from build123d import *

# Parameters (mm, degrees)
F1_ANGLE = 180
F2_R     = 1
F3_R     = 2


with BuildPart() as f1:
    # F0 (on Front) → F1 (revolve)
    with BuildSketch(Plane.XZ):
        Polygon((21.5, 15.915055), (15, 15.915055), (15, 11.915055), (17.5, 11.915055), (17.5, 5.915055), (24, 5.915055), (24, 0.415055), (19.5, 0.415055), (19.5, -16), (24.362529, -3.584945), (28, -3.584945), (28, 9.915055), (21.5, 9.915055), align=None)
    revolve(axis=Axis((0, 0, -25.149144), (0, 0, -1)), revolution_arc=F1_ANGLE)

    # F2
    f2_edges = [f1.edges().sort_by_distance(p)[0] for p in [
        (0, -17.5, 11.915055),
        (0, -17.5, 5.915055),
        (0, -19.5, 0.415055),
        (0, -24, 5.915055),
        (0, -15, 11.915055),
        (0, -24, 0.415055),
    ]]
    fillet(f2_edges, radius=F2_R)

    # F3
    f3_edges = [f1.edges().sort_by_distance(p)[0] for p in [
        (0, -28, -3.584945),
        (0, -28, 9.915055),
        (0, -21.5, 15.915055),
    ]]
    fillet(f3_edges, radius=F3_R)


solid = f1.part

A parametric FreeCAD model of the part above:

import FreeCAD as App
import Part
import Sketcher


def edges_at(feature, points):
    """Names of the edges that pass closest to the given points."""
    edges = feature.Shape.Edges
    near = lambda p: min(range(len(edges)), key=lambda i: edges[i].distToShape(Part.Vertex(*p))[0])
    return sorted({f"Edge{near(p) + 1}" for p in points})

doc = App.newDocument("Part")
body = doc.addObject("PartDesign::Body", "Body")

sketch1 = body.newObject("Sketcher::SketchObject", "Sketch")
sketch1.AttachmentSupport = (doc.getObject("XZ_Plane"), [""])
sketch1.MapMode = "FlatFace"
sketch1.addGeometry([
    Part.LineSegment(App.Vector(21.5, 15.915055, 0), App.Vector(15, 15.915055, 0)),
    Part.LineSegment(App.Vector(15, 15.915055, 0), App.Vector(15, 11.915055, 0)),
    Part.LineSegment(App.Vector(15, 11.915055, 0), App.Vector(17.5, 11.915055, 0)),
    Part.LineSegment(App.Vector(17.5, 11.915055, 0), App.Vector(17.5, 5.915055, 0)),
    Part.LineSegment(App.Vector(17.5, 5.915055, 0), App.Vector(24, 5.915055, 0)),
    Part.LineSegment(App.Vector(24, 5.915055, 0), App.Vector(24, 0.415055, 0)),
    Part.LineSegment(App.Vector(24, 0.415055, 0), App.Vector(19.5, 0.415055, 0)),
    Part.LineSegment(App.Vector(19.5, 0.415055, 0), App.Vector(19.5, -16, 0)),
    Part.LineSegment(App.Vector(19.5, -16, 0), App.Vector(24.362529, -3.584945, 0)),
    Part.LineSegment(App.Vector(24.362529, -3.584945, 0), App.Vector(28, -3.584945, 0)),
    Part.LineSegment(App.Vector(28, -3.584945, 0), App.Vector(28, 9.915055, 0)),
    Part.LineSegment(App.Vector(28, 9.915055, 0), App.Vector(21.5, 9.915055, 0)),
    Part.LineSegment(App.Vector(21.5, 9.915055, 0), App.Vector(21.5, 15.915055, 0)),
], False)
sketch1.addConstraint([
    Sketcher.Constraint("Coincident", 0, 2, 1, 1),
    Sketcher.Constraint("Coincident", 1, 2, 2, 1),
    Sketcher.Constraint("Coincident", 2, 2, 3, 1),
    Sketcher.Constraint("Coincident", 3, 2, 4, 1),
    Sketcher.Constraint("Coincident", 4, 2, 5, 1),
    Sketcher.Constraint("Coincident", 5, 2, 6, 1),
    Sketcher.Constraint("Coincident", 6, 2, 7, 1),
    Sketcher.Constraint("Coincident", 7, 2, 8, 1),
    Sketcher.Constraint("Coincident", 8, 2, 9, 1),
    Sketcher.Constraint("Coincident", 9, 2, 10, 1),
    Sketcher.Constraint("Coincident", 10, 2, 11, 1),
    Sketcher.Constraint("Coincident", 11, 2, 12, 1),
    Sketcher.Constraint("Coincident", 12, 2, 0, 1),
    Sketcher.Constraint("Horizontal", 0),
    Sketcher.Constraint("Vertical", 1),
    Sketcher.Constraint("Horizontal", 2),
    Sketcher.Constraint("Vertical", 3),
    Sketcher.Constraint("Horizontal", 4),
    Sketcher.Constraint("Vertical", 5),
    Sketcher.Constraint("Horizontal", 6),
    Sketcher.Constraint("Vertical", 7),
    Sketcher.Constraint("Horizontal", 9),
    Sketcher.Constraint("Vertical", 10),
    Sketcher.Constraint("Horizontal", 11),
    Sketcher.Constraint("Vertical", 12),
    Sketcher.Constraint("Equal", 0, 4),
    Sketcher.Constraint("Equal", 4, 11),
    Sketcher.Constraint("Equal", 3, 12),
    Sketcher.Constraint("DistanceY", 1, 2, 1, 1, 4.0),
    Sketcher.Constraint("DistanceY", 3, 2, 3, 1, 6.0),
    Sketcher.Constraint("DistanceX", 0, 2, 0, 1, 6.5),
    Sketcher.Constraint("DistanceX", 2, 1, 2, 2, 2.5),
    Sketcher.Constraint("DistanceX", 6, 2, 6, 1, 4.5),
    Sketcher.Constraint("DistanceY", 5, 2, 5, 1, 5.5),
    Sketcher.Constraint("DistanceY", 10, 1, 10, 2, 13.5),
    Sketcher.Constraint("DistanceX", -1, 1, 0, 2, 15.0),
    Sketcher.Constraint("DistanceY", 7, 2, -1, 1, 16.0),
    Sketcher.Constraint("DistanceX", 9, 1, 9, 2, 3.637471),
    Sketcher.Constraint("DistanceY", 7, 2, 7, 1, 16.415055),
])
revolution = body.newObject("PartDesign::Revolution", "Revolution")
revolution.Profile = sketch1
revolution.ReferenceAxis = (sketch1, ["V_Axis"])
revolution.Angle = 180
revolution.Reversed = True
doc.recompute()

fillet = body.newObject("PartDesign::Fillet", "Fillet")
fillet.Base = (revolution, edges_at(revolution, [
    (0, -17.5, 11.915),
    (0, -17.5, 5.915),
    (0, -19.5, 0.415),
    (0, -24, 5.915),
    (0, -15, 11.915),
    (0, -24, 0.415),
]))
fillet.Radius = 1
doc.recompute()

fillet2 = body.newObject("PartDesign::Fillet", "Fillet001")
fillet2.Base = (fillet, edges_at(fillet, [(0, -28, -3.585), (0, -28, 9.915), (0, -21.5, 15.915)]))
fillet2.Radius = 2

doc.recompute()
